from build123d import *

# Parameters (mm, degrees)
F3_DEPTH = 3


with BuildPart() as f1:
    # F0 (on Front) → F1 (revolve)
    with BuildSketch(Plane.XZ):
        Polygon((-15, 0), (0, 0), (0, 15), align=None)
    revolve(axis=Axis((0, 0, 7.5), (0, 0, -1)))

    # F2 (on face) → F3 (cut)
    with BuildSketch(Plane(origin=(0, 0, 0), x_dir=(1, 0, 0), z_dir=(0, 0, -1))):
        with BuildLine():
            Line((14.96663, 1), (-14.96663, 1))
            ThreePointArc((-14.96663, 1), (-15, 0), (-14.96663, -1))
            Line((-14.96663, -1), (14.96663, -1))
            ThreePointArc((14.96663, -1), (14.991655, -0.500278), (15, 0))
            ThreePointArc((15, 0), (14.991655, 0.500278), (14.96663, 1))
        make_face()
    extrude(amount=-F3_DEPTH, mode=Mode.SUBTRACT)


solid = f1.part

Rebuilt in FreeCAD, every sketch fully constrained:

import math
import FreeCAD as App
import Part
import Sketcher
from FreeCAD import Vector
Q = App.Units.Quantity

doc = App.newDocument("Part")
params = doc.addObject("Spreadsheet::Sheet", "Params")
for row, (alias, value) in enumerate([
    ("sketch1_width", "15 mm"),
    ("revolution_angle", "360 deg"),
    ("pocket1_length", "3 mm"),
], start=1):
    params.set(f"A{row}", alias)
    params.set(f"B{row}", "=" + value)
    params.setAlias(f"B{row}", alias)

body = doc.addObject("PartDesign::Body", "Body")

# Sketch on XZ plane
sketch1 = body.newObject("Sketcher::SketchObject", "Sketch")
sketch1.AttachmentSupport = (doc.getObject("XZ_Plane"), [""])
sketch1.MapMode = "FlatFace"
sketch1.addGeometry([
    Part.LineSegment(Vector(-15, 0, 0), Vector(0, 0, 0)),
    Part.LineSegment(Vector(0, 0, 0), Vector(0, 15, 0)),
    Part.LineSegment(Vector(0, 15, 0), Vector(-15, 0, 0)),
], False)
sketch1.addConstraint([
    Sketcher.Constraint("Coincident", 0, 2, 1, 1),
    Sketcher.Constraint("Coincident", 1, 2, 2, 1),
    Sketcher.Constraint("Coincident", 2, 2, 0, 1),
    Sketcher.Constraint("Horizontal", 0),
    Sketcher.Constraint("Vertical", 1),
    Sketcher.Constraint("Coincident", 0, 2, -1, 1),
    Sketcher.Constraint("Equal", 0, 1),
    Sketcher.Constraint("DistanceX", 0, 1, 0, 2, Q("15 mm")),
])
sketch1.setExpression("Constraints[7]", "Params.sketch1_width")
revolution = body.newObject("PartDesign::Revolution", "Revolution")
revolution.Profile = sketch1
revolution.ReferenceAxis = (sketch1, ["V_Axis"])
revolution.setExpression("Angle", "Params.revolution_angle")

# Sketch on XY plane
sketch2 = body.newObject("Sketcher::SketchObject", "Sketch001")
sketch2.AttachmentSupport = (doc.getObject("XY_Plane"), [""])
sketch2.MapMode = "FlatFace"
sketch2.addGeometry([
    Part.LineSegment(Vector(15, -1, 0), Vector(-15, -1, 0)),  # 0
    Part.ArcOfCircle(Part.Circle(Vector(0, 0, 0), Vector(0, 0, 1), 15), math.radians(176.18), math.radians(183.82)),  # 1
    Part.LineSegment(Vector(-15, 1, 0), Vector(15, 1, 0)),  # 2
    Part.ArcOfCircle(Part.Circle(Vector(0, 0, 0), Vector(0, 0, 1), 15), math.radians(0), math.radians(3.82)),  # 3
    Part.ArcOfCircle(Part.Circle(Vector(0, 0, 0), Vector(0, 0, 1), 15), math.radians(-3.82), math.radians(0)),  # 4
], False)
sketch2.addConstraint([
    Sketcher.Constraint("Coincident", 0, 2, 1, 2),
    Sketcher.Constraint("Coincident", 1, 1, 2, 1),
    Sketcher.Constraint("Coincident", 2, 2, 3, 2),
    Sketcher.Constraint("Tangent", 3, 1, 4, 2),
    Sketcher.Constraint("Coincident", 4, 1, 0, 1),
    Sketcher.Constraint("Horizontal", 0),
    Sketcher.Constraint("Horizontal", 2),
    Sketcher.Constraint("Equal", 3, 4),
    Sketcher.Constraint("Symmetric", 0, 2, 2, 2, -1, 1),
    Sketcher.Constraint("PointOnObject", 1, 3, -1),
    Sketcher.Constraint("PointOnObject", 3, 1, -1),
    Sketcher.Constraint("Vertical", 2, 2, 4, 1),
    Sketcher.Constraint("DistanceY", 0, 2, -1, 1, Q("1 mm")),
    Sketcher.Constraint("DistanceX", -1, 1, 3, 1, Q("15 mm")),
    Sketcher.Constraint("Radius", 1, Q("15.000203 mm")),
    Sketcher.Constraint("Radius", 3, Q("15.000543 mm")),
])
pocket1 = body.newObject("PartDesign::Pocket", "Pocket")
pocket1.Profile = sketch2
pocket1.setExpression("Length", "Params.pocket1_length")
pocket1.Reversed = True

doc.recompute()
